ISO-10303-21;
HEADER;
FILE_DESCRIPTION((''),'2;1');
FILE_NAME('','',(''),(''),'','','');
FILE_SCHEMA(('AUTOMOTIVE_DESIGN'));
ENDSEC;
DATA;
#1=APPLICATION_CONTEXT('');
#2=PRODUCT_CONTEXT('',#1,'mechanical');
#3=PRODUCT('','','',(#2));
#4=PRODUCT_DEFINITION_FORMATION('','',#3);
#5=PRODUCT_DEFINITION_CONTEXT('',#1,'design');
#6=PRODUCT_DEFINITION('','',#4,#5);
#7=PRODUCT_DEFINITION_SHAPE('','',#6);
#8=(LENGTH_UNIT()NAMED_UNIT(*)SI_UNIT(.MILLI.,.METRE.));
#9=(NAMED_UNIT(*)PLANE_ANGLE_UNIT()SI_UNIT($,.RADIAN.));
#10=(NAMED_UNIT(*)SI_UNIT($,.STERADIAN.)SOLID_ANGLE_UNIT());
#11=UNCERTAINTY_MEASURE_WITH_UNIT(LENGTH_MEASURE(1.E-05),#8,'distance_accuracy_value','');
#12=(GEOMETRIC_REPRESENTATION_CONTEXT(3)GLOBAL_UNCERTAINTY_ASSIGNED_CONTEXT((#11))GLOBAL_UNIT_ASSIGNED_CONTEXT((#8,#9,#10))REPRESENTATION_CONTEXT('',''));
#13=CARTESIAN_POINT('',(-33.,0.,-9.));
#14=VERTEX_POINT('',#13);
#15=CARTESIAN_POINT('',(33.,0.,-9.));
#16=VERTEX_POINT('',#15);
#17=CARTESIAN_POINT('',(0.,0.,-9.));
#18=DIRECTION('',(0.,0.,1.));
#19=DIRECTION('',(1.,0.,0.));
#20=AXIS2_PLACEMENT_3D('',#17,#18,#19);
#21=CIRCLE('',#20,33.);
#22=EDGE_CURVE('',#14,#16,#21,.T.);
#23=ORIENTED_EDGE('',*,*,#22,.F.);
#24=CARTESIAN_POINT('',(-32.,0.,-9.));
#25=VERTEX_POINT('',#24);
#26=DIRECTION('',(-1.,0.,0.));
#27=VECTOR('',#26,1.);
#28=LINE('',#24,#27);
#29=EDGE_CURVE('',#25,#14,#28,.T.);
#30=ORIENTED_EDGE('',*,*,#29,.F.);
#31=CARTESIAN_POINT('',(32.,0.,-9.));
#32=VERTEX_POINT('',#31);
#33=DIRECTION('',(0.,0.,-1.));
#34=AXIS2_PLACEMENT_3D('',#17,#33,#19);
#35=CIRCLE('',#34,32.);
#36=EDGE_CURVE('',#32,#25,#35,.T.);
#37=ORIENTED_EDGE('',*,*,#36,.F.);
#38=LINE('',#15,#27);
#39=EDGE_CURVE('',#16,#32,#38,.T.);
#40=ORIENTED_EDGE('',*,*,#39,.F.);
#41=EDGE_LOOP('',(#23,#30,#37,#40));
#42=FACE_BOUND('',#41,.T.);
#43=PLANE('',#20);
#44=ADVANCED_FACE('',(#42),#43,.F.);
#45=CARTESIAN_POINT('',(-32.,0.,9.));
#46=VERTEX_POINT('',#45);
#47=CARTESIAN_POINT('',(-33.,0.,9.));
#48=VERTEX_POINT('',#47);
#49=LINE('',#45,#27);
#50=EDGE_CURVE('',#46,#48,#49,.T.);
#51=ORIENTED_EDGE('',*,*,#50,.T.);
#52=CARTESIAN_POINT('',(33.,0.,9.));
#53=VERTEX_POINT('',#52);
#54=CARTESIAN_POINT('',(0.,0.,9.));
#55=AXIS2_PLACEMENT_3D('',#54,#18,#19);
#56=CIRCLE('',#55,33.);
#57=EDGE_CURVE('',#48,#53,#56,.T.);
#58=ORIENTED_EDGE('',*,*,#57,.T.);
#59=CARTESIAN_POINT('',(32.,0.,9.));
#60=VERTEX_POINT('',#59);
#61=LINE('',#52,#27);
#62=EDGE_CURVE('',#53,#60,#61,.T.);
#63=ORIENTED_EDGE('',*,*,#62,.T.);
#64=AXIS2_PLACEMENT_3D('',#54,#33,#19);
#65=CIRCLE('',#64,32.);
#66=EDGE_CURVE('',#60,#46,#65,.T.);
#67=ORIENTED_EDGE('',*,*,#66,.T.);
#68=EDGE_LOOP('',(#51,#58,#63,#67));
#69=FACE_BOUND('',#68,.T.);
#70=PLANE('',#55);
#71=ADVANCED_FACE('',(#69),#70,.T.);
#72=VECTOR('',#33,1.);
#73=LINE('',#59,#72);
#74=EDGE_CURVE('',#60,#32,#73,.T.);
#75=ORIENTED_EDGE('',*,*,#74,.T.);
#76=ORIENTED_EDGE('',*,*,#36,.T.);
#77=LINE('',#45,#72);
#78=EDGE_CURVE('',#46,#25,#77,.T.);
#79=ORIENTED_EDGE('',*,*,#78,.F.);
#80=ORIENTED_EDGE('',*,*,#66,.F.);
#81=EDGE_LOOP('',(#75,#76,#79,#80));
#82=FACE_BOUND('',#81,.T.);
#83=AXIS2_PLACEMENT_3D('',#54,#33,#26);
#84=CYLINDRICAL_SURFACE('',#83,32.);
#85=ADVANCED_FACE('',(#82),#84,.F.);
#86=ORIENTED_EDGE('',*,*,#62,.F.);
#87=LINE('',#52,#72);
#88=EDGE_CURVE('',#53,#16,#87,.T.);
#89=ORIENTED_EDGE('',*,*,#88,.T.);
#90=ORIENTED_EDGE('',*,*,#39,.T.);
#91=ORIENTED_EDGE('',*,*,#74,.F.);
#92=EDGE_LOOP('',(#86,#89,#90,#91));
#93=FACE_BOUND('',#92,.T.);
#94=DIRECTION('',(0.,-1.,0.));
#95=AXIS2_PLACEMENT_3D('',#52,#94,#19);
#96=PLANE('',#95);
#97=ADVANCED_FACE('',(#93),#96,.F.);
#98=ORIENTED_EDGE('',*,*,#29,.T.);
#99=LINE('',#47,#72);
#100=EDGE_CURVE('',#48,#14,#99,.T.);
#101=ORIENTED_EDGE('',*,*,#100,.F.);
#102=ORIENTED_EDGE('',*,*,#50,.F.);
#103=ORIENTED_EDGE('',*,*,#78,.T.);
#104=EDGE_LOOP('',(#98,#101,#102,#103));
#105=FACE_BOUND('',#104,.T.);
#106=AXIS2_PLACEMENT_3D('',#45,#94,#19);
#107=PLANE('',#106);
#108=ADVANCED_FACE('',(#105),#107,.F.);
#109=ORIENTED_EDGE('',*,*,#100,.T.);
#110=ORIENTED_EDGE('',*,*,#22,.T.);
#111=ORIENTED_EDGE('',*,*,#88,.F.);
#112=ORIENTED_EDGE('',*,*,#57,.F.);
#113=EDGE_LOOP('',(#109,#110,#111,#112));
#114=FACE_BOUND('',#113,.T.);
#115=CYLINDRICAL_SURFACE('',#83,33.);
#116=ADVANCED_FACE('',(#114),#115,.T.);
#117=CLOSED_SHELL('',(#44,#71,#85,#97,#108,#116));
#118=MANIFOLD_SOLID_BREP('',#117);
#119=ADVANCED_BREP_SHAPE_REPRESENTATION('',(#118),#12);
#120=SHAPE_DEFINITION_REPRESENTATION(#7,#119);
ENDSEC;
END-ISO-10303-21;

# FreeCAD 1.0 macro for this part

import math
import FreeCAD as App
import Part
import Sketcher

doc = App.newDocument("Part")
body = doc.addObject("PartDesign::Body", "Body")

# Sketch on XY plane
sketch1 = body.newObject("Sketcher::SketchObject", "Sketch")
sketch1.AttachmentSupport = (doc.getObject("XY_Plane"), [""])
sketch1.MapMode = "FlatFace"
sketch1.addGeometry([
    Part.LineSegment(App.Vector(-32, 0, 0), App.Vector(-33, 0, 0)),
    Part.ArcOfCircle(Part.Circle(App.Vector(0, 0, 0), App.Vector(0, 0, 1), 33), math.radians(180), math.radians(360)),
    Part.LineSegment(App.Vector(33, 0, 0), App.Vector(32, 0, 0)),
    Part.ArcOfCircle(Part.Circle(App.Vector(0, 0, 0), App.Vector(0, 0, 1), 32), math.radians(180), math.radians(360)),
], False)
sketch1.addConstraint([
    Sketcher.Constraint("Coincident", 0, 2, 1, 1),
    Sketcher.Constraint("Coincident", 1, 2, 2, 1),
    Sketcher.Constraint("Coincident", 2, 2, 3, 2),
    Sketcher.Constraint("Coincident", 3, 1, 0, 1),
    Sketcher.Constraint("Horizontal", 0),
    Sketcher.Constraint("Horizontal", 2),
    Sketcher.Constraint("Coincident", 1, 3, -1, 1),
    Sketcher.Constraint("Coincident", 3, 3, -1, 1),
    Sketcher.Constraint("PointOnObject", 0, 2, -1),
    Sketcher.Constraint("PointOnObject", 1, 2, -1),
    Sketcher.Constraint("Radius", 1, 33.0),
    Sketcher.Constraint("Radius", 3, 32.0),
])
pad1 = body.newObject("PartDesign::Pad", "Pad")
pad1.Profile = sketch1
pad1.Length = 18
pad1.Midplane = True

doc.recompute()
